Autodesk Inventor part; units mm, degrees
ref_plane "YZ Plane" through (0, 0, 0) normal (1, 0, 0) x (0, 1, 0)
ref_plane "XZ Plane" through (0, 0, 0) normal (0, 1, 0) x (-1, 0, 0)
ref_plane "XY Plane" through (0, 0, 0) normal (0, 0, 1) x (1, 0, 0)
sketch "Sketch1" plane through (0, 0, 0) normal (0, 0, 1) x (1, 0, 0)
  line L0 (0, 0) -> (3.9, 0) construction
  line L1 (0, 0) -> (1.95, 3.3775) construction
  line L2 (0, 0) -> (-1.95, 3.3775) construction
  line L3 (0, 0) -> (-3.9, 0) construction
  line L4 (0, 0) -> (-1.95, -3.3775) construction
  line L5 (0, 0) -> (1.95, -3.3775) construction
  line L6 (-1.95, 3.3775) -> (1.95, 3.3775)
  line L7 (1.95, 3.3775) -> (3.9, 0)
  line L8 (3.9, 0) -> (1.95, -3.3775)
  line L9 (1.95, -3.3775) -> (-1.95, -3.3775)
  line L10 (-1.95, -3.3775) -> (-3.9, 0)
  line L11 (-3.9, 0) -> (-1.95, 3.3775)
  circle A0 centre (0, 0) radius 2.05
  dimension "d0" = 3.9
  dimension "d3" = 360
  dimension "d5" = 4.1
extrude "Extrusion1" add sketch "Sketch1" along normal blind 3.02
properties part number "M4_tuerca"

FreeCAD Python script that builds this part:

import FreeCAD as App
import Part
import Sketcher

doc = App.newDocument("Part")
body = doc.addObject("PartDesign::Body", "Body")

# Sketch on XY plane
sketch1 = doc.addObject("Sketcher::SketchObject", "Sketch")
body.addObject(sketch1)
sketch1.AttachmentSupport = (doc.XY_Plane, [""])
sketch1.MapMode = "FlatFace"
sketch1.addGeometry([
    Part.LineSegment(App.Vector(1.9, 3.4, 0), App.Vector(-1.9, 3.4, 0)),  # 0
    Part.LineSegment(App.Vector(-1.9, 3.4, 0), App.Vector(-3.9, 0, 0)),  # 1
    Part.LineSegment(App.Vector(-3.9, 0, 0), App.Vector(-1.9, -3.4, 0)),  # 2
    Part.LineSegment(App.Vector(-1.9, -3.4, 0), App.Vector(1.9, -3.4, 0)),  # 3
    Part.LineSegment(App.Vector(1.9, -3.4, 0), App.Vector(3.9, 0, 0)),  # 4
    Part.LineSegment(App.Vector(3.9, 0, 0), App.Vector(1.9, 3.4, 0)),  # 5
    Part.Circle(App.Vector(0, 0, 0), App.Vector(0, 0, 1), 2),  # 6
], False)
sketch1.addConstraint([
    Sketcher.Constraint("Coincident", 0, 2, 1, 1),
    Sketcher.Constraint("Coincident", 1, 2, 2, 1),
    Sketcher.Constraint("Coincident", 2, 2, 3, 1),
    Sketcher.Constraint("Coincident", 3, 2, 4, 1),
    Sketcher.Constraint("Coincident", 4, 2, 5, 1),
    Sketcher.Constraint("Coincident", 5, 2, 0, 1),
    Sketcher.Constraint("Horizontal", 0),
    Sketcher.Constraint("Horizontal", 3),
    Sketcher.Constraint("Coincident", 6, 3, -1, 1),
    Sketcher.Constraint("Symmetric", 0, 2, 3, 2, -1, 1),
    Sketcher.Constraint("Symmetric", 1, 2, 4, 2, -1, 1),
    Sketcher.Constraint("PointOnObject", 1, 2, -1),
    Sketcher.Constraint("Parallel", 2, 5),
    Sketcher.Constraint("Vertical", 0, 2, 2, 2),
    Sketcher.Constraint("Diameter", 6, 4.1),
    Sketcher.Constraint("DistanceX", 0, 2, 0, 1, 3.9),
    Sketcher.Constraint("Distance", 1, 3.9),
    Sketcher.Constraint("DistanceX", 1, 2, -1, 1, 3.9),
])
pad1 = doc.addObject("PartDesign::Pad", "Pad")
body.addObject(pad1)
pad1.Profile = sketch1
pad1.Length = 3.02

doc.recompute()
